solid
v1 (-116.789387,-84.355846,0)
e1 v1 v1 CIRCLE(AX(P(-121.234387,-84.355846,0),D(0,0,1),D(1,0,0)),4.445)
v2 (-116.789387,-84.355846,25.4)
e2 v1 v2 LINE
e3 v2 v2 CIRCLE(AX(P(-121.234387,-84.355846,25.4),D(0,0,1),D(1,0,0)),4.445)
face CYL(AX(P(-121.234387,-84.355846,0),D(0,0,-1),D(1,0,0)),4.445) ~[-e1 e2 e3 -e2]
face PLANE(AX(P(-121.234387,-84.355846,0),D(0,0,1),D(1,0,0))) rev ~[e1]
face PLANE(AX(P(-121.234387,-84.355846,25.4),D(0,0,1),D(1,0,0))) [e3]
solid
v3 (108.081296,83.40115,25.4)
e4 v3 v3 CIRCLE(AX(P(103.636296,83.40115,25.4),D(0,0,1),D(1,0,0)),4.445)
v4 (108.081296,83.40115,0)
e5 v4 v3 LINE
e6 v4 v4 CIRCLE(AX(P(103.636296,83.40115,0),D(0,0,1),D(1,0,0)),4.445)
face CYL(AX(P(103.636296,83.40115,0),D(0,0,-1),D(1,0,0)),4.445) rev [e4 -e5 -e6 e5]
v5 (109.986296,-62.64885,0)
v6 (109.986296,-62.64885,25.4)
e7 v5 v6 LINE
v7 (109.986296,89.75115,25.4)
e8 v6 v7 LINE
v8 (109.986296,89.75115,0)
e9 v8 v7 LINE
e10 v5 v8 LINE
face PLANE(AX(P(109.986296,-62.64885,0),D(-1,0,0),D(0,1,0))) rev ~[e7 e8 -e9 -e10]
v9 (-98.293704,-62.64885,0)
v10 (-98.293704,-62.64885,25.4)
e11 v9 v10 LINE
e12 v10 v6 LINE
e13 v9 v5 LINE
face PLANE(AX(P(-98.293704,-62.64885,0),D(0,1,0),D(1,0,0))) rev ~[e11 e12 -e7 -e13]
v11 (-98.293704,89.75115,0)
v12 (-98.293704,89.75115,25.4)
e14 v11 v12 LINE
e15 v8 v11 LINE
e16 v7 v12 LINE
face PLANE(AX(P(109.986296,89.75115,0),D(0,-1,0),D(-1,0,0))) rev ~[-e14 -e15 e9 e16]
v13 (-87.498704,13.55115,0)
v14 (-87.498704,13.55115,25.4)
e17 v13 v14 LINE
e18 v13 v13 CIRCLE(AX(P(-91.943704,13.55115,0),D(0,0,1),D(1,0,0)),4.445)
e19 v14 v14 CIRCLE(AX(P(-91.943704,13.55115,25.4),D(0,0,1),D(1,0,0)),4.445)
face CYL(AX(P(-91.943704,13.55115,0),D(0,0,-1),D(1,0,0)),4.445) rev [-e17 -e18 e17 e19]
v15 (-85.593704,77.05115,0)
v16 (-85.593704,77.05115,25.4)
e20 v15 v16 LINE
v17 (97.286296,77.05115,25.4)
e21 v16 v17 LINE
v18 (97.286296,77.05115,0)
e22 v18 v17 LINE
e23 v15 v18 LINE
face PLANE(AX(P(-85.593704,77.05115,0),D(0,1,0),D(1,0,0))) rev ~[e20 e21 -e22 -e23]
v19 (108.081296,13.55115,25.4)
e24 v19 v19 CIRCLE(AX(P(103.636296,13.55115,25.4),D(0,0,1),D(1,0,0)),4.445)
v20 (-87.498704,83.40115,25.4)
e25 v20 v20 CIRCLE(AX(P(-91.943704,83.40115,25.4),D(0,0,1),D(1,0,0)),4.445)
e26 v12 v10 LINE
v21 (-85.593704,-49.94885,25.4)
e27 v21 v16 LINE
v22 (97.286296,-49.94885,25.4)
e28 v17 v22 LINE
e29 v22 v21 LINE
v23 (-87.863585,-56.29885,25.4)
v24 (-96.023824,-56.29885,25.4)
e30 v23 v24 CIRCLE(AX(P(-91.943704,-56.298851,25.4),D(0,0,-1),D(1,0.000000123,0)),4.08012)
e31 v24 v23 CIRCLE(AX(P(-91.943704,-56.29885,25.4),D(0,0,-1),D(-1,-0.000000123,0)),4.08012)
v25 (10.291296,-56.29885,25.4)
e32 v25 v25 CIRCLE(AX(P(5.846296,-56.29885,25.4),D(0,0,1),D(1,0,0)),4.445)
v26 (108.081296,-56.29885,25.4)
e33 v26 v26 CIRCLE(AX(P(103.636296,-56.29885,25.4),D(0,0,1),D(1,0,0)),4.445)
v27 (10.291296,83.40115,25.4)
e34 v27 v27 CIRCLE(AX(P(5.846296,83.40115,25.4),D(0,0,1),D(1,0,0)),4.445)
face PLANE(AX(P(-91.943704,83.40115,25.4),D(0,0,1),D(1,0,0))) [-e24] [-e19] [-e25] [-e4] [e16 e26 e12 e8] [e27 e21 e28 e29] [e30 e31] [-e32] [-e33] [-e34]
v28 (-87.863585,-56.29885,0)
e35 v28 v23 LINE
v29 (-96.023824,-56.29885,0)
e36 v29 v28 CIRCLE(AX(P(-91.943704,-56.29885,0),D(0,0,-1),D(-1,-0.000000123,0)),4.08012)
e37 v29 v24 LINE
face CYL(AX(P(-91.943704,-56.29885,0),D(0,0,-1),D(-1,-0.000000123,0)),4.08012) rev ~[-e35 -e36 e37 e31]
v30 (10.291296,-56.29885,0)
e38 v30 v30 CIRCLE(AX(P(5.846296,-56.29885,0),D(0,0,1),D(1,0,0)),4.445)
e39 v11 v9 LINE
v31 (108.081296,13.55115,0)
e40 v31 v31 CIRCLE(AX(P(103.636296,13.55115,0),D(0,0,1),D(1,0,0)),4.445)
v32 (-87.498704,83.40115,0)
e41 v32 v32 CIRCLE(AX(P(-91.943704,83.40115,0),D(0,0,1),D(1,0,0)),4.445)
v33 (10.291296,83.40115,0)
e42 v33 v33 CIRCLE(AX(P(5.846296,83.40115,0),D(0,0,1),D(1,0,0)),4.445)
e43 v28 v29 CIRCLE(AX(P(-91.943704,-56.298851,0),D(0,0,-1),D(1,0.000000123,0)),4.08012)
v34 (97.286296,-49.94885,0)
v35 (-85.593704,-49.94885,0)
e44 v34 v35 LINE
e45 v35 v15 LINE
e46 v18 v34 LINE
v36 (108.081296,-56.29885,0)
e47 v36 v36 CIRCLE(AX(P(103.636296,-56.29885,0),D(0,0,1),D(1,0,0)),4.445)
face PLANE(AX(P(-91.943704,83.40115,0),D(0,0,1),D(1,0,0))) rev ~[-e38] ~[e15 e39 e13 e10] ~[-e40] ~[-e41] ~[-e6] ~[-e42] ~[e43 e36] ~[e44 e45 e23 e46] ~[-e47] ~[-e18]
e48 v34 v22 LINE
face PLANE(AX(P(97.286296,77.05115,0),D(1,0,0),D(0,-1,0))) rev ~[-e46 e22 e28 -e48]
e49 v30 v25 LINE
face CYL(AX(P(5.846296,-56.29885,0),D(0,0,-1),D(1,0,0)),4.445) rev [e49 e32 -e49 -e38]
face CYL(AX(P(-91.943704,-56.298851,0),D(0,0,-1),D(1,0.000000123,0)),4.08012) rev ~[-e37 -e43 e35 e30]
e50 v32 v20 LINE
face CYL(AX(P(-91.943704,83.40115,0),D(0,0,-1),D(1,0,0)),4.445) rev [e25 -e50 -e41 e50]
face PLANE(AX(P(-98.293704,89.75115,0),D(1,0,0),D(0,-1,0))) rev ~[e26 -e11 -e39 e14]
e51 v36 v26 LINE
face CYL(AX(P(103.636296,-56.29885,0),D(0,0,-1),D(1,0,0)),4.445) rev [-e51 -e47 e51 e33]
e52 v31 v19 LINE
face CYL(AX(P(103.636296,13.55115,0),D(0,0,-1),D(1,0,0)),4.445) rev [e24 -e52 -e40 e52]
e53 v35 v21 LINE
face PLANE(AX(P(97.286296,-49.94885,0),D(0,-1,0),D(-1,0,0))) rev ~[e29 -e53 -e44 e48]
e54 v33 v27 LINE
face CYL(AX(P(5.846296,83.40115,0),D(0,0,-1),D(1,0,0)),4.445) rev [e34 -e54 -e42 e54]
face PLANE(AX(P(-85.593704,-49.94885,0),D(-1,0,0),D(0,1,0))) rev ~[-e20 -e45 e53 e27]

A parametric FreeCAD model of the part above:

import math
import FreeCAD as App
import Part
import Sketcher
Q = App.Units.Quantity

doc = App.newDocument("Part")
params = doc.addObject("Spreadsheet::Sheet", "Params")
for row, (alias, value) in enumerate([
    ("sketch1_diameter", "0.35 in"),
    ("sketch1_height", "6 in"),
    ("sketch1_height2", "5 in"),
    ("sketch1_width", "8.2 in"),
    ("sketch1_width2", "7.2 in"),
    ("pad1_length", "1 in"),
], start=1):
    params.set(f"A{row}", alias)
    params.set(f"B{row}", "=" + value)
    params.setAlias(f"B{row}", alias)

body = doc.addObject("PartDesign::Body", "Body")
body.AllowCompound = True

# Sketch on XY plane
sketch1 = body.newObject("Sketcher::SketchObject", "Sketch")
sketch1.AttachmentSupport = (doc.getObject("XY_Plane"), [""])
sketch1.MapMode = "FlatFace"
sketch1.addGeometry([
    Part.LineSegment(App.Vector(-98.293704, -62.64885, 0), App.Vector(109.986296, -62.64885, 0)),  # 0
    Part.LineSegment(App.Vector(109.986296, -62.64885, 0), App.Vector(109.986296, 89.75115, 0)),  # 1
    Part.LineSegment(App.Vector(109.986296, 89.75115, 0), App.Vector(-98.293704, 89.75115, 0)),  # 2
    Part.LineSegment(App.Vector(-98.293704, 89.75115, 0), App.Vector(-98.293704, -62.64885, 0)),  # 3
    Part.ArcOfCircle(Part.Circle(App.Vector(-91.943704, -56.29885, 0), App.Vector(0, 0, 1), 4.08012), math.radians(-0.000007), math.radians(180.000007)),  # 4
    Part.ArcOfCircle(Part.Circle(App.Vector(-91.943704, -56.298851, 0), App.Vector(0, 0, 1), 4.08012), math.radians(179.999993), math.radians(360.000007)),  # 5
    Part.Circle(App.Vector(5.846296, -56.29885, 0), App.Vector(0, 0, 1), 4.445),  # 6
    Part.Circle(App.Vector(103.636296, -56.29885, 0), App.Vector(0, 0, 1), 4.445),  # 7
    Part.Circle(App.Vector(-91.943704, 13.55115, 0), App.Vector(0, 0, 1), 4.445),  # 8
    Part.Circle(App.Vector(-91.943704, 83.40115, 0), App.Vector(0, 0, 1), 4.445),  # 9
    Part.LineSegment(App.Vector(97.286296, 77.05115, 0), App.Vector(97.286296, -49.94885, 0)),  # 10
    Part.LineSegment(App.Vector(97.286296, -49.94885, 0), App.Vector(-85.593704, -49.94885, 0)),  # 11
    Part.LineSegment(App.Vector(-85.593704, -49.94885, 0), App.Vector(-85.593704, 77.05115, 0)),  # 12
    Part.LineSegment(App.Vector(-85.593704, 77.05115, 0), App.Vector(97.286296, 77.05115, 0)),  # 13
    Part.Circle(App.Vector(103.636296, 13.55115, 0), App.Vector(0, 0, 1), 4.445),  # 14
    Part.Circle(App.Vector(5.846296, 83.40115, 0), App.Vector(0, 0, 1), 4.445),  # 15
    Part.Circle(App.Vector(103.636296, 83.40115, 0), App.Vector(0, 0, 1), 4.445),  # 16
    Part.Circle(App.Vector(-121.234387, -84.355846, 0), App.Vector(0, 0, 1), 4.445),  # 17
], False)
sketch1.addConstraint([
    Sketcher.Constraint("Coincident", 0, 2, 1, 1),
    Sketcher.Constraint("Coincident", 1, 2, 2, 1),
    Sketcher.Constraint("Coincident", 2, 2, 3, 1),
    Sketcher.Constraint("Coincident", 3, 2, 0, 1),
    Sketcher.Constraint("Tangent", 4, 1, 5, 2),
    Sketcher.Constraint("Coincident", 5, 1, 4, 2),
    Sketcher.Constraint("Coincident", 10, 2, 11, 1),
    Sketcher.Constraint("Coincident", 11, 2, 12, 1),
    Sketcher.Constraint("Coincident", 12, 2, 13, 1),
    Sketcher.Constraint("Coincident", 13, 2, 10, 1),
    Sketcher.Constraint("Horizontal", 0),
    Sketcher.Constraint("Vertical", 1),
    Sketcher.Constraint("Horizontal", 2),
    Sketcher.Constraint("Vertical", 3),
    Sketcher.Constraint("Vertical", 10),
    Sketcher.Constraint("Horizontal", 11),
    Sketcher.Constraint("Vertical", 12),
    Sketcher.Constraint("Horizontal", 13),
    Sketcher.Constraint("Equal", 6, 7),
    Sketcher.Constraint("Equal", 7, 8),
    Sketcher.Constraint("Equal", 8, 9),
    Sketcher.Constraint("Equal", 9, 14),
    Sketcher.Constraint("Equal", 14, 15),
    Sketcher.Constraint("Equal", 15, 16),
    Sketcher.Constraint("Equal", 16, 17),
    Sketcher.Constraint("Horizontal", 5, 3, 6, 3),
    Sketcher.Constraint("Horizontal", 6, 3, 7, 3),
    Sketcher.Constraint("Horizontal", 8, 3, 14, 3),
    Sketcher.Constraint("Horizontal", 9, 3, 15, 3),
    Sketcher.Constraint("Horizontal", 15, 3, 16, 3),
    Sketcher.Constraint("Horizontal", 7, 3, 4, 1),
    Sketcher.Constraint("Horizontal", 4, 1, 5, 1),
    Sketcher.Constraint("Vertical", 5, 3, 8, 3),
    Sketcher.Constraint("Vertical", 8, 3, 9, 3),
    Sketcher.Constraint("Vertical", 7, 3, 14, 3),
    Sketcher.Constraint("Vertical", 6, 3, 15, 3),
    Sketcher.Constraint("Vertical", 14, 3, 16, 3),
    Sketcher.Constraint("Diameter", 6, Q("0.35 in")),
    Sketcher.Constraint("DistanceY", 1, 1, 1, 2, Q("6 in")),
    Sketcher.Constraint("DistanceY", 10, 2, 10, 1, Q("5 in")),
    Sketcher.Constraint("DistanceX", 0, 1, 0, 2, Q("8.2 in")),
    Sketcher.Constraint("DistanceX", 11, 2, 11, 1, Q("7.2 in")),
    Sketcher.Constraint("DistanceY", 0, 2, 14, 3, Q("3 in")),
    Sketcher.Constraint("DistanceX", 4, 3, 7, 3, Q("7.7 in")),
    Sketcher.Constraint("DistanceY", 4, 3, 9, 3, Q("5.5 in")),
    Sketcher.Constraint("DistanceX", 6, 3, 0, 2, Q("4.1 in")),
    Sketcher.Constraint("DistanceX", 10, 2, 0, 2, Q("0.5 in")),
    Sketcher.Constraint("DistanceY", 0, 2, 10, 2, Q("0.5 in")),
    Sketcher.Constraint("DistanceX", 4, 3, 6, 3, Q("3.85 in")),
    Sketcher.Constraint("DistanceY", 4, 3, 8, 3, Q("2.75 in")),
    Sketcher.Constraint("Radius", 4, Q("4.08012 mm")),
    Sketcher.Constraint("DistanceX", 17, 3, 4, 1, Q("33.370802 mm")),
    Sketcher.Constraint("DistanceY", 4, 3, -1, 1, Q("56.29885 mm")),
    Sketcher.Constraint("DistanceX", 4, 3, -1, 1, Q("91.943704 mm")),
    Sketcher.Constraint("DistanceY", 17, 3, -1, 1, Q("84.355846 mm")),
])
sketch1.setExpression("Constraints[37]", "Params.sketch1_diameter")
sketch1.setExpression("Constraints[38]", "Params.sketch1_height")
sketch1.setExpression("Constraints[39]", "Params.sketch1_height2")
sketch1.setExpression("Constraints[40]", "Params.sketch1_width")
sketch1.setExpression("Constraints[41]", "Params.sketch1_width2")
pad1 = body.newObject("PartDesign::Pad", "Pad")
pad1.Profile = sketch1
pad1.setExpression("Length", "Params.pad1_length")

doc.recompute()
